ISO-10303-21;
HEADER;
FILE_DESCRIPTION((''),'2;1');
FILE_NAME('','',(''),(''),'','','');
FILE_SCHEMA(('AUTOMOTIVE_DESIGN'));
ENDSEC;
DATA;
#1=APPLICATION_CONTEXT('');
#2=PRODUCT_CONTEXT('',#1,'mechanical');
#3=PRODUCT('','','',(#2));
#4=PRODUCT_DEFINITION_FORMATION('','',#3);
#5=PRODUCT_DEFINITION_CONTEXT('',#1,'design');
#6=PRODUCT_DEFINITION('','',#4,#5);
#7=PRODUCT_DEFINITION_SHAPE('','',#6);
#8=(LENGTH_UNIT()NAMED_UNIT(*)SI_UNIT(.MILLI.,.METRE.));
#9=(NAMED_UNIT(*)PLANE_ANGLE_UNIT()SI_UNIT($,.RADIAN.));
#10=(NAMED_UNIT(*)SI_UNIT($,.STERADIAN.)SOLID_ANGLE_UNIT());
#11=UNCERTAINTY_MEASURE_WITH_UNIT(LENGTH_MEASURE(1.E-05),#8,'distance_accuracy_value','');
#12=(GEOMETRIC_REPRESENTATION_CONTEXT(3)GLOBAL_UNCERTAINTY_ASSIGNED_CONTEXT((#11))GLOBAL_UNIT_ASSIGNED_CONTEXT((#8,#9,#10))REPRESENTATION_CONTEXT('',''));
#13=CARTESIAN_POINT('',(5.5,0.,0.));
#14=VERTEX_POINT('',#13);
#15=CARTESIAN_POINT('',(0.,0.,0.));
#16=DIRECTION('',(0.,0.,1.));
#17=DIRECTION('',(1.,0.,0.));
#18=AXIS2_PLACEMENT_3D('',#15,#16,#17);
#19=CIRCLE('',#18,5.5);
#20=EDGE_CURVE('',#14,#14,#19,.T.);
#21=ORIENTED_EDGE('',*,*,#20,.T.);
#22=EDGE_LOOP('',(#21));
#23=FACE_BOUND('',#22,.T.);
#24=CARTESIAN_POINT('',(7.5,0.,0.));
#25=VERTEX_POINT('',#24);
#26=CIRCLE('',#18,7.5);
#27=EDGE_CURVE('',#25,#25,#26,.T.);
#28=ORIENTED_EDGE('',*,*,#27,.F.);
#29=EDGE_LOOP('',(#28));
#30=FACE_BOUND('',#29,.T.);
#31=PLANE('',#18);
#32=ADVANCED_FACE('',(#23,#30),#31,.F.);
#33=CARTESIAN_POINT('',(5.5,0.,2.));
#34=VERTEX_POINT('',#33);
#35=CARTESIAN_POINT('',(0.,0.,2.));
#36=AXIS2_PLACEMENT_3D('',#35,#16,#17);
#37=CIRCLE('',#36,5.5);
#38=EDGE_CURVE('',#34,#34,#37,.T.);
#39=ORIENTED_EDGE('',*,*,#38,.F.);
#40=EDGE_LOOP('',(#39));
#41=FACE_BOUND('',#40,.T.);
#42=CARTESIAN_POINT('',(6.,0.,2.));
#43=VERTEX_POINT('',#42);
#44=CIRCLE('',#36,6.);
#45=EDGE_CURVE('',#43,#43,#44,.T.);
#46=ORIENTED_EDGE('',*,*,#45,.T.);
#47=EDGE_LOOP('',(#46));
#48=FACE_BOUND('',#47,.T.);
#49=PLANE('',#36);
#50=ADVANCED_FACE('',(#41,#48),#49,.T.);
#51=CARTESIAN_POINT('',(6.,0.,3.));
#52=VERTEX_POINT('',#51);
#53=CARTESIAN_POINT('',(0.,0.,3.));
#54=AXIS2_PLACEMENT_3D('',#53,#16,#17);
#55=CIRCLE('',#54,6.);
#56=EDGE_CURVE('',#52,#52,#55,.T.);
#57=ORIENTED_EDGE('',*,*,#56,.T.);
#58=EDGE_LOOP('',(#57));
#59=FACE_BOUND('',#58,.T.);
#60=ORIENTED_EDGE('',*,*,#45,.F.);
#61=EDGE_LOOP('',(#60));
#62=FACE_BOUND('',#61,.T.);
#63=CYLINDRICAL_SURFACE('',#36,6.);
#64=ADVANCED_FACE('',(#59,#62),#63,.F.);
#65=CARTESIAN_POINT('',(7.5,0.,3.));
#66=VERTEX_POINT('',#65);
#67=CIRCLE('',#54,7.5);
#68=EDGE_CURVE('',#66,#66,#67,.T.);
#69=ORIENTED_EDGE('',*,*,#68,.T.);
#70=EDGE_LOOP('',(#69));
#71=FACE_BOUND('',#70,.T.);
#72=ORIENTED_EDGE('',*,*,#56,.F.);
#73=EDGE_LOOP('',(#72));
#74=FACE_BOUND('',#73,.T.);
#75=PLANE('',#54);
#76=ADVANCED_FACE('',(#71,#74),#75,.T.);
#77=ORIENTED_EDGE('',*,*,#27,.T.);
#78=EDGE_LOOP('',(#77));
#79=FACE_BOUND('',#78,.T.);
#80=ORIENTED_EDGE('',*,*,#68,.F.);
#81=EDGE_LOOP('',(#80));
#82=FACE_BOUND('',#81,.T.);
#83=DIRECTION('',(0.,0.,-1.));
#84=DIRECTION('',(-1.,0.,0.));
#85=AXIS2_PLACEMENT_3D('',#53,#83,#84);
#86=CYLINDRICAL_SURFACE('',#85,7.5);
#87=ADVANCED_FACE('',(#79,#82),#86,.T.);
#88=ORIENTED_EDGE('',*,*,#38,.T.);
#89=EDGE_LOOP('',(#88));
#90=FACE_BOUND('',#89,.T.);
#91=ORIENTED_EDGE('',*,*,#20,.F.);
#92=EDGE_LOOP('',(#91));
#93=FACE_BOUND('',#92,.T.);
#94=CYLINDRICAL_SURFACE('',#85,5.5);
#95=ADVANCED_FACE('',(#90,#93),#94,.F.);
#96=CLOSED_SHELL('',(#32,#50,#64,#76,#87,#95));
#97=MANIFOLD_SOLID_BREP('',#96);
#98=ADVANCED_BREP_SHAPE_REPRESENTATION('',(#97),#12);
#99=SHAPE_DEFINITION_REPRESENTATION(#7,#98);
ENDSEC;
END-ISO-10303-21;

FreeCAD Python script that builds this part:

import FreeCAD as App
import Part
import Sketcher
from FreeCAD import Vector

doc = App.newDocument("Part")
body = doc.addObject("PartDesign::Body", "Body")

# Sketch on XY plane
sketch1 = body.newObject("Sketcher::SketchObject", "Sketch")
sketch1.AttachmentSupport = (doc.getObject("XY_Plane"), [""])
sketch1.MapMode = "FlatFace"
sketch1.addGeometry(Part.Circle(Vector(0, 0, 0), Vector(0, 0, 1), 8), False)
sketch1.addGeometry(Part.Circle(Vector(0, 0, 0), Vector(0, 0, 1), 6), False)
sketch1.addConstraint(Sketcher.Constraint("Coincident", 0, 3, -1, 1))
sketch1.addConstraint(Sketcher.Constraint("Coincident", 1, 3, -1, 1))
sketch1.addConstraint(Sketcher.Constraint("Diameter", 0, 15.0))
sketch1.addConstraint(Sketcher.Constraint("Diameter", 1, 11.0))
pad1 = body.newObject("PartDesign::Pad", "Pad")
pad1.Profile = sketch1
pad1.Length = 3

# Sketch on XY plane
sketch2 = body.newObject("Sketcher::SketchObject", "Sketch001")
sketch2.AttachmentSupport = (doc.getObject("XY_Plane"), [""])
sketch2.MapMode = "FlatFace"
sketch2.AttachmentOffset = App.Placement(Vector(0, 0, 3), App.Rotation())
sketch2.addGeometry(Part.Circle(Vector(0, 0, 0), Vector(0, 0, 1), 6), False)
sketch2.addConstraint(Sketcher.Constraint("Coincident", 0, 3, -1, 1))
sketch2.addConstraint(Sketcher.Constraint("Diameter", 0, 12.0))
pocket1 = body.newObject("PartDesign::Pocket", "Pocket")
pocket1.Profile = sketch2
pocket1.Length = 1

doc.recompute()
